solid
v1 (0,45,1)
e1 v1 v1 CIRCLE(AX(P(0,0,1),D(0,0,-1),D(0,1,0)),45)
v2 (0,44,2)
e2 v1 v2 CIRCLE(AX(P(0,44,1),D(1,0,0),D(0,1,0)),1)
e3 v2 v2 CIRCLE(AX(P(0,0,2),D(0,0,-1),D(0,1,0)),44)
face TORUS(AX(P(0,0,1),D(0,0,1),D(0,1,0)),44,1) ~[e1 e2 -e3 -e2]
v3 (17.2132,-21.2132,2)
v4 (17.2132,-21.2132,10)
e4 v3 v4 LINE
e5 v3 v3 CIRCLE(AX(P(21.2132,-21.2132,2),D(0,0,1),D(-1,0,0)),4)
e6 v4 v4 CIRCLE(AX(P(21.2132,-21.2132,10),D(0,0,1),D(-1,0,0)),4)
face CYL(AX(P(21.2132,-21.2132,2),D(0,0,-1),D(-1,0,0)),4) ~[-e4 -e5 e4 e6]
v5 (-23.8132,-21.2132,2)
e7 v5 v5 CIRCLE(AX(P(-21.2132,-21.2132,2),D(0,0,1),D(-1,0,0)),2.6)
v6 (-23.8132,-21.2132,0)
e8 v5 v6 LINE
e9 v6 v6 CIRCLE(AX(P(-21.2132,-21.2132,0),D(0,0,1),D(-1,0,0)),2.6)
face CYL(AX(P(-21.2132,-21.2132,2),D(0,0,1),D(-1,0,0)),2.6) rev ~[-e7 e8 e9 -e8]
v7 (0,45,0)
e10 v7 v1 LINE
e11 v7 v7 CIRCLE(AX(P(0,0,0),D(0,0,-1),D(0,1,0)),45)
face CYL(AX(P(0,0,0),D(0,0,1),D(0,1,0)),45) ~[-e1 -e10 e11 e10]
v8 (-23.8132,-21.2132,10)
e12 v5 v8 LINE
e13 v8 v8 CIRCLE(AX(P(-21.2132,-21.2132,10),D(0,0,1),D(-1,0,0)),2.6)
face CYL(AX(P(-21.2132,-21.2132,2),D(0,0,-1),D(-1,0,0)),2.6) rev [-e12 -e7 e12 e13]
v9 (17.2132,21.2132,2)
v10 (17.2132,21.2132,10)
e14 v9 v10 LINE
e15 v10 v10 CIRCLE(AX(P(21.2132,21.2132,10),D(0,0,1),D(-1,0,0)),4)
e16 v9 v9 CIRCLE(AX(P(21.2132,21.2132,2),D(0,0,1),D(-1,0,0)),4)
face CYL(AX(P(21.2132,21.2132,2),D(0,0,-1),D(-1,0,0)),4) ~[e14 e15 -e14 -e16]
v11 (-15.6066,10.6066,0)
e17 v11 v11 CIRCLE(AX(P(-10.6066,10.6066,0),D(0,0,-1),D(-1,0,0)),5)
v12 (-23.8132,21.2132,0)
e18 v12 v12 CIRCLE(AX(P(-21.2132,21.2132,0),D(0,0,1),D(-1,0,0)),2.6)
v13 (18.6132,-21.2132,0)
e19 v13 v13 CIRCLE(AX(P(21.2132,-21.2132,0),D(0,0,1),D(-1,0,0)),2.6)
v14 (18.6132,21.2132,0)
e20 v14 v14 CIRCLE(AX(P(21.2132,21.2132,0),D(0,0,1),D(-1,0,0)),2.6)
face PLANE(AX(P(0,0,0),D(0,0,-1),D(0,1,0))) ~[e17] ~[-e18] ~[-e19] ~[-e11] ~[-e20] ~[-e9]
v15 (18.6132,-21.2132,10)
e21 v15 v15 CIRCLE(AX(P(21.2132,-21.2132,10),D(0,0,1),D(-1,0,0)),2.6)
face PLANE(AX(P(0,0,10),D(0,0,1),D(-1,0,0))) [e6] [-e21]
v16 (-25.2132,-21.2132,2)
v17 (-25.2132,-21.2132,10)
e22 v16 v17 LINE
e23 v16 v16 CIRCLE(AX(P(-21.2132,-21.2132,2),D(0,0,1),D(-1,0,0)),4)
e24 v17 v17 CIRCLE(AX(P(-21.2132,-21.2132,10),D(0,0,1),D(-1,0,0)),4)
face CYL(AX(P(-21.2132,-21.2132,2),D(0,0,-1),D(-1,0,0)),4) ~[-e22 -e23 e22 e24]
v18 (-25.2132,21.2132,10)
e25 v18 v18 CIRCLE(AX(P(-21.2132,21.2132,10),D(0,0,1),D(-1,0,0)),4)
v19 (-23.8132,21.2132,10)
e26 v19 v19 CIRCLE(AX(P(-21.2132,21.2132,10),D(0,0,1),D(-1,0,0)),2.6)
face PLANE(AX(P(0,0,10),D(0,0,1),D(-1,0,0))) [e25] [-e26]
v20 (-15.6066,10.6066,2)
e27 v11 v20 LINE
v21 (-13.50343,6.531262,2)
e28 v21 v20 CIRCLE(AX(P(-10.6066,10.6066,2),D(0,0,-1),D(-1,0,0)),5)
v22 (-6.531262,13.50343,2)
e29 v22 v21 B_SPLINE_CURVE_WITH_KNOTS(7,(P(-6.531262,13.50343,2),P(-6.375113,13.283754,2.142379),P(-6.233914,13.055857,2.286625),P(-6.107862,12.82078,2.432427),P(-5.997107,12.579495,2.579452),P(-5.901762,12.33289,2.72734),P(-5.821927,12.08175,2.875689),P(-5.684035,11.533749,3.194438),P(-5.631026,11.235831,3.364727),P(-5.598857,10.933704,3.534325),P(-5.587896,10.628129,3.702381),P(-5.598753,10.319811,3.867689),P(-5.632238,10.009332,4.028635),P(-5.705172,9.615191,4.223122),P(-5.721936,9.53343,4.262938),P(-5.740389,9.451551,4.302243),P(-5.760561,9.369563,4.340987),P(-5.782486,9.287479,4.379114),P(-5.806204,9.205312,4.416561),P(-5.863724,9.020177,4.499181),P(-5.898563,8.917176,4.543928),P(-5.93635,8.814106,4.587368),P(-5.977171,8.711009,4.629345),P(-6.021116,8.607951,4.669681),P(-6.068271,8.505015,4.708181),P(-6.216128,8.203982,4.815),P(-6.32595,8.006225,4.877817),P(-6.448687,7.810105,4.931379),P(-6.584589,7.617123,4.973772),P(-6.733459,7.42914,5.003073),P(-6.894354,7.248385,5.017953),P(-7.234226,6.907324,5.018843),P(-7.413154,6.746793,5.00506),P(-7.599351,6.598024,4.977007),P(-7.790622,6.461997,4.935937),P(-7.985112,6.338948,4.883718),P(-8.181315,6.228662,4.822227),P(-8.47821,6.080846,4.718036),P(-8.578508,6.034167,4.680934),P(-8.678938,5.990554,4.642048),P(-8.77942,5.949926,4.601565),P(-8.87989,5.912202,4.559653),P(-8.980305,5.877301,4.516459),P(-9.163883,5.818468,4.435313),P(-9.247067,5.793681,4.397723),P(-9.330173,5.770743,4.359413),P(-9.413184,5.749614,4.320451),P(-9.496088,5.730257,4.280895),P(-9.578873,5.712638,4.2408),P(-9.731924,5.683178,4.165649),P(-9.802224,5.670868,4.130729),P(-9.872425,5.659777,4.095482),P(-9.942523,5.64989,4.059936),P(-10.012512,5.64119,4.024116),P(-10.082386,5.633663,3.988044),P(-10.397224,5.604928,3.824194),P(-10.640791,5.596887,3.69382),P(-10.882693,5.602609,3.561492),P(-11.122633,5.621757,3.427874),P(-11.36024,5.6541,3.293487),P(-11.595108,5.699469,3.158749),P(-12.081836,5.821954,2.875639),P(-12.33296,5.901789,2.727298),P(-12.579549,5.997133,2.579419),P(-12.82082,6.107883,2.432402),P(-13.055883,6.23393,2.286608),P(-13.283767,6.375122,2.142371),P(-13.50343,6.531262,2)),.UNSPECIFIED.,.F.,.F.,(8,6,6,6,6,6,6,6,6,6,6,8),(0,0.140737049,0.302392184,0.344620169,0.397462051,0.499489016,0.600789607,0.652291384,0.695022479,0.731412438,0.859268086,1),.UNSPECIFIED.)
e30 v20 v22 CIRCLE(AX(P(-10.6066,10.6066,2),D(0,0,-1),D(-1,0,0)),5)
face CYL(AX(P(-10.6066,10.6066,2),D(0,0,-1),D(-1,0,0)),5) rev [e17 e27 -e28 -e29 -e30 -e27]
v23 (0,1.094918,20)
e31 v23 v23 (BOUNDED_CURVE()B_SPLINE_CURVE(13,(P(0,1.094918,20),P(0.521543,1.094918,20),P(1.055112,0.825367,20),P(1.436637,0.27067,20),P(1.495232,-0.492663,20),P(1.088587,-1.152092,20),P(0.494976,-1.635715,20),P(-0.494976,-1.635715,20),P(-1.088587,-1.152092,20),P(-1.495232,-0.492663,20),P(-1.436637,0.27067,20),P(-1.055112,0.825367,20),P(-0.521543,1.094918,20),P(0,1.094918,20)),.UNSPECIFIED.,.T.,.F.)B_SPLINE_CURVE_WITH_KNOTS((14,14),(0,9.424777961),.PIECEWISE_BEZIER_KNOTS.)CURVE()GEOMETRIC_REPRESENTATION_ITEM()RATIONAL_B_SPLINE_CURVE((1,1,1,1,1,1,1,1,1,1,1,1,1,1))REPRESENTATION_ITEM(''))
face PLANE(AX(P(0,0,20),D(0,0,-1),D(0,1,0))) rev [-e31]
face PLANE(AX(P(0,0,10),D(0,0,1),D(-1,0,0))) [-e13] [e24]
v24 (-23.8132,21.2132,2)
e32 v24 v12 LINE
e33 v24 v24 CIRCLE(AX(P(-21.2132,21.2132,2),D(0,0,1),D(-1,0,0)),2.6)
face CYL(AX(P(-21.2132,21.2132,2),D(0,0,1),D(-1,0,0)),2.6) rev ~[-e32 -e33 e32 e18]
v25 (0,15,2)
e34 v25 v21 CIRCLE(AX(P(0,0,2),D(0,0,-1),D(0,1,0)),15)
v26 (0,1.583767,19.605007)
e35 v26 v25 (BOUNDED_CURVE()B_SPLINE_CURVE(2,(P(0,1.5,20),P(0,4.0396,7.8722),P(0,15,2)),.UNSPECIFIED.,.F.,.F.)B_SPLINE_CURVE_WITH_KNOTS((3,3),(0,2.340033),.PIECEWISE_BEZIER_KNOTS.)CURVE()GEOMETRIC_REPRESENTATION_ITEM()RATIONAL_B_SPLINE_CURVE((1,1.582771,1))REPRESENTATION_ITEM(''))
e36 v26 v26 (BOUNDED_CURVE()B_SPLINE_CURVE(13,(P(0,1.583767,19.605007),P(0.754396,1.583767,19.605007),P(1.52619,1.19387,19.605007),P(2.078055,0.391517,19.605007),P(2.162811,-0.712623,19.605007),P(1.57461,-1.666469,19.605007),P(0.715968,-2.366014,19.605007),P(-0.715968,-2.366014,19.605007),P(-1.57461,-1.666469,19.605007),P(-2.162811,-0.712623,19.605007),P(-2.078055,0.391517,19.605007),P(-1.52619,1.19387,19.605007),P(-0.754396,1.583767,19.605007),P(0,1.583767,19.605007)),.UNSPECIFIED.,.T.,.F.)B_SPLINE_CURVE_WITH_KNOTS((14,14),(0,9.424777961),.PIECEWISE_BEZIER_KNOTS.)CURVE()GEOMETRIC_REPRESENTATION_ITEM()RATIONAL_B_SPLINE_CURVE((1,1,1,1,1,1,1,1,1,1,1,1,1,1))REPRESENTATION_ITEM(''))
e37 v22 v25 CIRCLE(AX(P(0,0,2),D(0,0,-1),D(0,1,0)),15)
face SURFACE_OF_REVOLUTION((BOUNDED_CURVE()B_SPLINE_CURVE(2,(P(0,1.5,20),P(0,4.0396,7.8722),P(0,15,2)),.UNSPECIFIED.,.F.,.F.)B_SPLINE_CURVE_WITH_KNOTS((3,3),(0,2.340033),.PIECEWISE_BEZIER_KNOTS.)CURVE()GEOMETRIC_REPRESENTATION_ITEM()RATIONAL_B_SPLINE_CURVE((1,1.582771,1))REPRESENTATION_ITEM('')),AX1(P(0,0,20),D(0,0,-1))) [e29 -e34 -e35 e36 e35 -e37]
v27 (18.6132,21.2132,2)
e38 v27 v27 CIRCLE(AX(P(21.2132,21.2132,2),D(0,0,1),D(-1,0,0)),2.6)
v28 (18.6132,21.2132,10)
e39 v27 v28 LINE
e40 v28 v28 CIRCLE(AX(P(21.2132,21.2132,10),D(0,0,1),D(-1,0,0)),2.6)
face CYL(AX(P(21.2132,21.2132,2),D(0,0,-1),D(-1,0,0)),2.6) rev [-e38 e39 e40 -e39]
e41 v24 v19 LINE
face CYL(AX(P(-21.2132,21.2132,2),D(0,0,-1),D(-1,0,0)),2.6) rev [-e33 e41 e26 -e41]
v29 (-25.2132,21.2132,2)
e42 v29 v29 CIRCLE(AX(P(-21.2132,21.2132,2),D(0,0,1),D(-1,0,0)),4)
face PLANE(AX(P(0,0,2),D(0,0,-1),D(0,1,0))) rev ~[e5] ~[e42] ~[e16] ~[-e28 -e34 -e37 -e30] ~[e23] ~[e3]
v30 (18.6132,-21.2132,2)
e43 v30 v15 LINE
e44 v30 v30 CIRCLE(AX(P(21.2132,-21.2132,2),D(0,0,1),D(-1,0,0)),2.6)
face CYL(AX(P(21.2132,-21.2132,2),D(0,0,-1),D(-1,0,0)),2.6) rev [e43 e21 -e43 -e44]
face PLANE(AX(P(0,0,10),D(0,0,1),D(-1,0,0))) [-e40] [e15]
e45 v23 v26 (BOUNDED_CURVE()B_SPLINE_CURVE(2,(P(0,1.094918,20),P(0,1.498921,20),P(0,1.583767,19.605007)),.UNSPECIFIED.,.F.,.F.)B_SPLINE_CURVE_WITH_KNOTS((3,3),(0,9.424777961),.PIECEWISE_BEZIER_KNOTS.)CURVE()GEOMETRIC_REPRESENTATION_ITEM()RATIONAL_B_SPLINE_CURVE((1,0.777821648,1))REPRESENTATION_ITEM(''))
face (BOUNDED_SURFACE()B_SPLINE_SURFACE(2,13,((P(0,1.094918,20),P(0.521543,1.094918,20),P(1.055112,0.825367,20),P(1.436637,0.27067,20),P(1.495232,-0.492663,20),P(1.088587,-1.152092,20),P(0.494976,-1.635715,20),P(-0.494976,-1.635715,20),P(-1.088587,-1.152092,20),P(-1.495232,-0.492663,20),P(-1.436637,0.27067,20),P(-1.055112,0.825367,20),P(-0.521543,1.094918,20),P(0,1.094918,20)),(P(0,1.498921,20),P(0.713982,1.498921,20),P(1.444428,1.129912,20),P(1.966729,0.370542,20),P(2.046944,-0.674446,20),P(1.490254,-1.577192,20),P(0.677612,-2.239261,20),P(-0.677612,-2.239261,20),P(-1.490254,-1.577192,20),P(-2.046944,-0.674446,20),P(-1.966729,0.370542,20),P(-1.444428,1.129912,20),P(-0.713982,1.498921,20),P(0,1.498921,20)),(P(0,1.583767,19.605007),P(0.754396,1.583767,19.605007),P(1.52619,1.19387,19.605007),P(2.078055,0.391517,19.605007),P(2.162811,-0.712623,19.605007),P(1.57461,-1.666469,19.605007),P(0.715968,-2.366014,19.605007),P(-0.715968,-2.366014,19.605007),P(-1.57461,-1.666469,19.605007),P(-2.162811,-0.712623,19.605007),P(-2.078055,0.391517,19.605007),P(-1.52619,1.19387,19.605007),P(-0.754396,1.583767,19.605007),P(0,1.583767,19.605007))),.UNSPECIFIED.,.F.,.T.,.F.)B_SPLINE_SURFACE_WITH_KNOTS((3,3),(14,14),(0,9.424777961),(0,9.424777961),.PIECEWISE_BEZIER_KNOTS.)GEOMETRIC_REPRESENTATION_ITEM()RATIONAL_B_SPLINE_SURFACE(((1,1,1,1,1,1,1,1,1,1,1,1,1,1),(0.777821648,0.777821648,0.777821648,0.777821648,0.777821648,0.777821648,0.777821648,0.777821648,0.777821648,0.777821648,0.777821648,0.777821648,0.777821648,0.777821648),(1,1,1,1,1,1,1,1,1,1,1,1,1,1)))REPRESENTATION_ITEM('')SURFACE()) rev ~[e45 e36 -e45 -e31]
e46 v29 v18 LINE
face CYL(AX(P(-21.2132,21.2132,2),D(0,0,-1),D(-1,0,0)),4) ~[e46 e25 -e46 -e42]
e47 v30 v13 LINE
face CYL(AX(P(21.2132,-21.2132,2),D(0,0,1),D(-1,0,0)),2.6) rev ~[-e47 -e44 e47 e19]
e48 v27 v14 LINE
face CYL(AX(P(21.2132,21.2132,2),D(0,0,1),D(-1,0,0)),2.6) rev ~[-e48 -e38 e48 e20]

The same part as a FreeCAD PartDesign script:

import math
import FreeCAD as App
import Part
import Sketcher
Q = App.Units.Quantity


def edges_at(feature, points):
    """Names of the edges that pass closest to the given points."""
    edges = feature.Shape.Edges
    near = lambda p: min(range(len(edges)), key=lambda i: edges[i].distToShape(Part.Vertex(*p))[0])
    return sorted({f"Edge{near(p) + 1}" for p in points})

doc = App.newDocument("Part")
params = doc.addObject("Spreadsheet::Sheet", "Params")
for row, (alias, value) in enumerate([
    ("sketch1_radius", "1 mm"),
    ("sketch1_width", "45 mm"),
    ("revolution_angle", "360 deg"),
    ("fillet_radius", "0.5 mm"),
    ("sketch2_diameter", "8 mm"),
    ("sketch2_diameter2", "5.2 mm"),
    ("pad1_length", "8 mm"),
    ("sketch3_diameter", "5.2 mm"),
    ("pocket1_length", "5 mm"),
    ("sketch4_diameter", "10 mm"),
    ("pocket2_length", "18 mm"),
], start=1):
    params.set(f"A{row}", alias)
    params.set(f"B{row}", "=" + value)
    params.setAlias(f"B{row}", alias)

body = doc.addObject("PartDesign::Body", "Body")

sketch1 = body.newObject("Sketcher::SketchObject", "Sketch")
sketch1.AttachmentSupport = (doc.getObject("YZ_Plane"), [""])
sketch1.MapMode = "FlatFace"
sketch1.addGeometry([
    Part.LineSegment(App.Vector(0, 20, 0), App.Vector(0, 0, 0)),
    Part.LineSegment(App.Vector(0, 0, 0), App.Vector(45, 0, 0)),
    Part.LineSegment(App.Vector(45, 0, 0), App.Vector(45, 1, 0)),
    Part.ArcOfCircle(Part.Circle(App.Vector(44, 1, 0), App.Vector(0, 0, 1), 1), math.radians(0), math.radians(90)),
    Part.LineSegment(App.Vector(44, 2, 0), App.Vector(15, 2, 0)),
    Part.BSplineCurve([App.Vector(1.5, 20, 0), App.Vector(4.0396, 7.8722, 0), App.Vector(15, 2, 0)], [3, 3], [0, 2.340033], False, 2, [1, 1.582771, 1], False),
    Part.LineSegment(App.Vector(1.5, 20, 0), App.Vector(0, 20, 0)),
], False)
sketch1.addConstraint([
    Sketcher.Constraint("Block", 5),
    Sketcher.Constraint("Coincident", 0, 2, 1, 1),
    Sketcher.Constraint("Coincident", 1, 2, 2, 1),
    Sketcher.Constraint("Tangent", 2, 2, 3, 1),
    Sketcher.Constraint("Tangent", 3, 2, 4, 1),
    Sketcher.Constraint("Coincident", 4, 2, 5, 2),
    Sketcher.Constraint("Coincident", 5, 1, 6, 1),
    Sketcher.Constraint("Coincident", 6, 2, 0, 1),
    Sketcher.Constraint("Vertical", 0),
    Sketcher.Constraint("Horizontal", 1),
    Sketcher.Constraint("Vertical", 2),
    Sketcher.Constraint("Horizontal", 4),
    Sketcher.Constraint("Horizontal", 6),
    Sketcher.Constraint("Coincident", 0, 2, -1, 1),
    Sketcher.Constraint("Radius", 3, Q("1 mm")),
    Sketcher.Constraint("DistanceX", 1, 1, 1, 2, Q("45 mm")),
])
sketch1.setExpression("Constraints[14]", "Params.sketch1_radius")
sketch1.setExpression("Constraints[15]", "Params.sketch1_width")
revolution = body.newObject("PartDesign::Revolution", "Revolution")
revolution.Profile = sketch1
revolution.ReferenceAxis = (sketch1, ["V_Axis"])
revolution.setExpression("Angle", "Params.revolution_angle")
doc.recompute()

fillet = body.newObject("PartDesign::Fillet", "Fillet")
fillet.Base = (revolution, edges_at(revolution, [(-1.399, 0.542, 20)]))
fillet.setExpression("Radius", "Params.fillet_radius")

sketch2 = body.newObject("Sketcher::SketchObject", "Sketch001")
sketch2.AttachmentSupport = (doc.getObject("XY_Plane"), [""])
sketch2.MapMode = "FlatFace"
sketch2.AttachmentOffset = App.Placement(App.Vector(0, 0, 2), App.Rotation())
sketch2.addGeometry([
    Part.Circle(App.Vector(-21.2, 21.2, 0), App.Vector(0, 0, 1), 4),
    Part.Circle(App.Vector(-21.2, 21.2, 0), App.Vector(0, 0, 1), 2.6),
    Part.Circle(App.Vector(21.2, 21.2, 0), App.Vector(0, 0, 1), 4),
    Part.Circle(App.Vector(21.2, 21.2, 0), App.Vector(0, 0, 1), 2.6),
    Part.Circle(App.Vector(-21.2, -21.2, 0), App.Vector(0, 0, 1), 4),
    Part.Circle(App.Vector(-21.2, -21.2, 0), App.Vector(0, 0, 1), 2.6),
    Part.Circle(App.Vector(21.2, -21.2, 0), App.Vector(0, 0, 1), 4),
    Part.Circle(App.Vector(21.2, -21.2, 0), App.Vector(0, 0, 1), 2.6),
], False)
sketch2.addConstraint([
    Sketcher.Constraint("Coincident", 1, 3, 0, 3),
    Sketcher.Constraint("Coincident", 3, 3, 2, 3),
    Sketcher.Constraint("Coincident", 5, 3, 4, 3),
    Sketcher.Constraint("Coincident", 7, 3, 6, 3),
    Sketcher.Constraint("Equal", 0, 2),
    Sketcher.Constraint("Equal", 1, 3),
    Sketcher.Constraint("Equal", 2, 4),
    Sketcher.Constraint("Equal", 3, 5),
    Sketcher.Constraint("Equal", 4, 6),
    Sketcher.Constraint("Equal", 5, 7),
    Sketcher.Constraint("Symmetric", 2, 3, 4, 3, -1, 1),
    Sketcher.Constraint("Symmetric", 0, 3, 6, 3, -1, 1),
    Sketcher.Constraint("Symmetric", 0, 3, 2, 3, -2),
    Sketcher.Constraint("Diameter", 0, Q("8 mm")),
    Sketcher.Constraint("Diameter", 1, Q("5.2 mm")),
    Sketcher.Constraint("DistanceX", 0, 3, -1, 1, Q("21.2132 mm")),
    Sketcher.Constraint("DistanceY", -1, 1, 0, 3, Q("21.2132 mm")),
])
sketch2.setExpression("Constraints[13]", "Params.sketch2_diameter")
sketch2.setExpression("Constraints[14]", "Params.sketch2_diameter2")
pad1 = body.newObject("PartDesign::Pad", "Pad")
pad1.Profile = sketch2
pad1.setExpression("Length", "Params.pad1_length")

sketch3 = body.newObject("Sketcher::SketchObject", "Sketch002")
sketch3.AttachmentSupport = (doc.getObject("XY_Plane"), [""])
sketch3.MapMode = "FlatFace"
sketch3.AttachmentOffset = App.Placement(App.Vector(0, 0, 2), App.Rotation())
sketch3.addGeometry([
    Part.Circle(App.Vector(-21.2, 21.2, 0), App.Vector(0, 0, 1), 2.6),
    Part.Circle(App.Vector(21.2, 21.2, 0), App.Vector(0, 0, 1), 2.6),
    Part.Circle(App.Vector(21.2, -21.2, 0), App.Vector(0, 0, 1), 2.6),
    Part.Circle(App.Vector(-21.2, -21.2, 0), App.Vector(0, 0, 1), 2.6),
], False)
sketch3.addConstraint([
    Sketcher.Constraint("Equal", 0, 1),
    Sketcher.Constraint("Equal", 1, 2),
    Sketcher.Constraint("Equal", 2, 3),
    Sketcher.Constraint("Symmetric", 0, 3, 2, 3, -1, 1),
    Sketcher.Constraint("Symmetric", 1, 3, 3, 3, -1, 1),
    Sketcher.Constraint("Symmetric", 0, 3, 1, 3, -2),
    Sketcher.Constraint("Diameter", 0, Q("5.2 mm")),
    Sketcher.Constraint("DistanceX", 0, 3, -1, 1, Q("21.2132 mm")),
    Sketcher.Constraint("DistanceY", -1, 1, 0, 3, Q("21.2132 mm")),
])
sketch3.setExpression("Constraints[6]", "Params.sketch3_diameter")
pocket1 = body.newObject("PartDesign::Pocket", "Pocket")
pocket1.Profile = sketch3
pocket1.setExpression("Length", "Params.pocket1_length")

sketch4 = body.newObject("Sketcher::SketchObject", "Sketch003")
sketch4.AttachmentSupport = (doc.getObject("XY_Plane"), [""])
sketch4.MapMode = "FlatFace"
sketch4.AttachmentOffset = App.Placement(App.Vector(0, 0, 2), App.Rotation())
sketch4.addGeometry(Part.Circle(App.Vector(-11, 11, 0), App.Vector(0, 0, 1), 5), False)
sketch4.addConstraint([
    Sketcher.Constraint("Diameter", 0, Q("10 mm")),
    Sketcher.Constraint("DistanceX", 0, 3, -1, 1, Q("10.6066 mm")),
    Sketcher.Constraint("DistanceY", -1, 1, 0, 3, Q("10.6066 mm")),
])
sketch4.setExpression("Constraints[0]", "Params.sketch4_diameter")
pocket2 = body.newObject("PartDesign::Pocket", "Pocket001")
pocket2.Profile = sketch4
pocket2.setExpression("Length", "Params.pocket2_length")
pocket2.Midplane = True

doc.recompute()
